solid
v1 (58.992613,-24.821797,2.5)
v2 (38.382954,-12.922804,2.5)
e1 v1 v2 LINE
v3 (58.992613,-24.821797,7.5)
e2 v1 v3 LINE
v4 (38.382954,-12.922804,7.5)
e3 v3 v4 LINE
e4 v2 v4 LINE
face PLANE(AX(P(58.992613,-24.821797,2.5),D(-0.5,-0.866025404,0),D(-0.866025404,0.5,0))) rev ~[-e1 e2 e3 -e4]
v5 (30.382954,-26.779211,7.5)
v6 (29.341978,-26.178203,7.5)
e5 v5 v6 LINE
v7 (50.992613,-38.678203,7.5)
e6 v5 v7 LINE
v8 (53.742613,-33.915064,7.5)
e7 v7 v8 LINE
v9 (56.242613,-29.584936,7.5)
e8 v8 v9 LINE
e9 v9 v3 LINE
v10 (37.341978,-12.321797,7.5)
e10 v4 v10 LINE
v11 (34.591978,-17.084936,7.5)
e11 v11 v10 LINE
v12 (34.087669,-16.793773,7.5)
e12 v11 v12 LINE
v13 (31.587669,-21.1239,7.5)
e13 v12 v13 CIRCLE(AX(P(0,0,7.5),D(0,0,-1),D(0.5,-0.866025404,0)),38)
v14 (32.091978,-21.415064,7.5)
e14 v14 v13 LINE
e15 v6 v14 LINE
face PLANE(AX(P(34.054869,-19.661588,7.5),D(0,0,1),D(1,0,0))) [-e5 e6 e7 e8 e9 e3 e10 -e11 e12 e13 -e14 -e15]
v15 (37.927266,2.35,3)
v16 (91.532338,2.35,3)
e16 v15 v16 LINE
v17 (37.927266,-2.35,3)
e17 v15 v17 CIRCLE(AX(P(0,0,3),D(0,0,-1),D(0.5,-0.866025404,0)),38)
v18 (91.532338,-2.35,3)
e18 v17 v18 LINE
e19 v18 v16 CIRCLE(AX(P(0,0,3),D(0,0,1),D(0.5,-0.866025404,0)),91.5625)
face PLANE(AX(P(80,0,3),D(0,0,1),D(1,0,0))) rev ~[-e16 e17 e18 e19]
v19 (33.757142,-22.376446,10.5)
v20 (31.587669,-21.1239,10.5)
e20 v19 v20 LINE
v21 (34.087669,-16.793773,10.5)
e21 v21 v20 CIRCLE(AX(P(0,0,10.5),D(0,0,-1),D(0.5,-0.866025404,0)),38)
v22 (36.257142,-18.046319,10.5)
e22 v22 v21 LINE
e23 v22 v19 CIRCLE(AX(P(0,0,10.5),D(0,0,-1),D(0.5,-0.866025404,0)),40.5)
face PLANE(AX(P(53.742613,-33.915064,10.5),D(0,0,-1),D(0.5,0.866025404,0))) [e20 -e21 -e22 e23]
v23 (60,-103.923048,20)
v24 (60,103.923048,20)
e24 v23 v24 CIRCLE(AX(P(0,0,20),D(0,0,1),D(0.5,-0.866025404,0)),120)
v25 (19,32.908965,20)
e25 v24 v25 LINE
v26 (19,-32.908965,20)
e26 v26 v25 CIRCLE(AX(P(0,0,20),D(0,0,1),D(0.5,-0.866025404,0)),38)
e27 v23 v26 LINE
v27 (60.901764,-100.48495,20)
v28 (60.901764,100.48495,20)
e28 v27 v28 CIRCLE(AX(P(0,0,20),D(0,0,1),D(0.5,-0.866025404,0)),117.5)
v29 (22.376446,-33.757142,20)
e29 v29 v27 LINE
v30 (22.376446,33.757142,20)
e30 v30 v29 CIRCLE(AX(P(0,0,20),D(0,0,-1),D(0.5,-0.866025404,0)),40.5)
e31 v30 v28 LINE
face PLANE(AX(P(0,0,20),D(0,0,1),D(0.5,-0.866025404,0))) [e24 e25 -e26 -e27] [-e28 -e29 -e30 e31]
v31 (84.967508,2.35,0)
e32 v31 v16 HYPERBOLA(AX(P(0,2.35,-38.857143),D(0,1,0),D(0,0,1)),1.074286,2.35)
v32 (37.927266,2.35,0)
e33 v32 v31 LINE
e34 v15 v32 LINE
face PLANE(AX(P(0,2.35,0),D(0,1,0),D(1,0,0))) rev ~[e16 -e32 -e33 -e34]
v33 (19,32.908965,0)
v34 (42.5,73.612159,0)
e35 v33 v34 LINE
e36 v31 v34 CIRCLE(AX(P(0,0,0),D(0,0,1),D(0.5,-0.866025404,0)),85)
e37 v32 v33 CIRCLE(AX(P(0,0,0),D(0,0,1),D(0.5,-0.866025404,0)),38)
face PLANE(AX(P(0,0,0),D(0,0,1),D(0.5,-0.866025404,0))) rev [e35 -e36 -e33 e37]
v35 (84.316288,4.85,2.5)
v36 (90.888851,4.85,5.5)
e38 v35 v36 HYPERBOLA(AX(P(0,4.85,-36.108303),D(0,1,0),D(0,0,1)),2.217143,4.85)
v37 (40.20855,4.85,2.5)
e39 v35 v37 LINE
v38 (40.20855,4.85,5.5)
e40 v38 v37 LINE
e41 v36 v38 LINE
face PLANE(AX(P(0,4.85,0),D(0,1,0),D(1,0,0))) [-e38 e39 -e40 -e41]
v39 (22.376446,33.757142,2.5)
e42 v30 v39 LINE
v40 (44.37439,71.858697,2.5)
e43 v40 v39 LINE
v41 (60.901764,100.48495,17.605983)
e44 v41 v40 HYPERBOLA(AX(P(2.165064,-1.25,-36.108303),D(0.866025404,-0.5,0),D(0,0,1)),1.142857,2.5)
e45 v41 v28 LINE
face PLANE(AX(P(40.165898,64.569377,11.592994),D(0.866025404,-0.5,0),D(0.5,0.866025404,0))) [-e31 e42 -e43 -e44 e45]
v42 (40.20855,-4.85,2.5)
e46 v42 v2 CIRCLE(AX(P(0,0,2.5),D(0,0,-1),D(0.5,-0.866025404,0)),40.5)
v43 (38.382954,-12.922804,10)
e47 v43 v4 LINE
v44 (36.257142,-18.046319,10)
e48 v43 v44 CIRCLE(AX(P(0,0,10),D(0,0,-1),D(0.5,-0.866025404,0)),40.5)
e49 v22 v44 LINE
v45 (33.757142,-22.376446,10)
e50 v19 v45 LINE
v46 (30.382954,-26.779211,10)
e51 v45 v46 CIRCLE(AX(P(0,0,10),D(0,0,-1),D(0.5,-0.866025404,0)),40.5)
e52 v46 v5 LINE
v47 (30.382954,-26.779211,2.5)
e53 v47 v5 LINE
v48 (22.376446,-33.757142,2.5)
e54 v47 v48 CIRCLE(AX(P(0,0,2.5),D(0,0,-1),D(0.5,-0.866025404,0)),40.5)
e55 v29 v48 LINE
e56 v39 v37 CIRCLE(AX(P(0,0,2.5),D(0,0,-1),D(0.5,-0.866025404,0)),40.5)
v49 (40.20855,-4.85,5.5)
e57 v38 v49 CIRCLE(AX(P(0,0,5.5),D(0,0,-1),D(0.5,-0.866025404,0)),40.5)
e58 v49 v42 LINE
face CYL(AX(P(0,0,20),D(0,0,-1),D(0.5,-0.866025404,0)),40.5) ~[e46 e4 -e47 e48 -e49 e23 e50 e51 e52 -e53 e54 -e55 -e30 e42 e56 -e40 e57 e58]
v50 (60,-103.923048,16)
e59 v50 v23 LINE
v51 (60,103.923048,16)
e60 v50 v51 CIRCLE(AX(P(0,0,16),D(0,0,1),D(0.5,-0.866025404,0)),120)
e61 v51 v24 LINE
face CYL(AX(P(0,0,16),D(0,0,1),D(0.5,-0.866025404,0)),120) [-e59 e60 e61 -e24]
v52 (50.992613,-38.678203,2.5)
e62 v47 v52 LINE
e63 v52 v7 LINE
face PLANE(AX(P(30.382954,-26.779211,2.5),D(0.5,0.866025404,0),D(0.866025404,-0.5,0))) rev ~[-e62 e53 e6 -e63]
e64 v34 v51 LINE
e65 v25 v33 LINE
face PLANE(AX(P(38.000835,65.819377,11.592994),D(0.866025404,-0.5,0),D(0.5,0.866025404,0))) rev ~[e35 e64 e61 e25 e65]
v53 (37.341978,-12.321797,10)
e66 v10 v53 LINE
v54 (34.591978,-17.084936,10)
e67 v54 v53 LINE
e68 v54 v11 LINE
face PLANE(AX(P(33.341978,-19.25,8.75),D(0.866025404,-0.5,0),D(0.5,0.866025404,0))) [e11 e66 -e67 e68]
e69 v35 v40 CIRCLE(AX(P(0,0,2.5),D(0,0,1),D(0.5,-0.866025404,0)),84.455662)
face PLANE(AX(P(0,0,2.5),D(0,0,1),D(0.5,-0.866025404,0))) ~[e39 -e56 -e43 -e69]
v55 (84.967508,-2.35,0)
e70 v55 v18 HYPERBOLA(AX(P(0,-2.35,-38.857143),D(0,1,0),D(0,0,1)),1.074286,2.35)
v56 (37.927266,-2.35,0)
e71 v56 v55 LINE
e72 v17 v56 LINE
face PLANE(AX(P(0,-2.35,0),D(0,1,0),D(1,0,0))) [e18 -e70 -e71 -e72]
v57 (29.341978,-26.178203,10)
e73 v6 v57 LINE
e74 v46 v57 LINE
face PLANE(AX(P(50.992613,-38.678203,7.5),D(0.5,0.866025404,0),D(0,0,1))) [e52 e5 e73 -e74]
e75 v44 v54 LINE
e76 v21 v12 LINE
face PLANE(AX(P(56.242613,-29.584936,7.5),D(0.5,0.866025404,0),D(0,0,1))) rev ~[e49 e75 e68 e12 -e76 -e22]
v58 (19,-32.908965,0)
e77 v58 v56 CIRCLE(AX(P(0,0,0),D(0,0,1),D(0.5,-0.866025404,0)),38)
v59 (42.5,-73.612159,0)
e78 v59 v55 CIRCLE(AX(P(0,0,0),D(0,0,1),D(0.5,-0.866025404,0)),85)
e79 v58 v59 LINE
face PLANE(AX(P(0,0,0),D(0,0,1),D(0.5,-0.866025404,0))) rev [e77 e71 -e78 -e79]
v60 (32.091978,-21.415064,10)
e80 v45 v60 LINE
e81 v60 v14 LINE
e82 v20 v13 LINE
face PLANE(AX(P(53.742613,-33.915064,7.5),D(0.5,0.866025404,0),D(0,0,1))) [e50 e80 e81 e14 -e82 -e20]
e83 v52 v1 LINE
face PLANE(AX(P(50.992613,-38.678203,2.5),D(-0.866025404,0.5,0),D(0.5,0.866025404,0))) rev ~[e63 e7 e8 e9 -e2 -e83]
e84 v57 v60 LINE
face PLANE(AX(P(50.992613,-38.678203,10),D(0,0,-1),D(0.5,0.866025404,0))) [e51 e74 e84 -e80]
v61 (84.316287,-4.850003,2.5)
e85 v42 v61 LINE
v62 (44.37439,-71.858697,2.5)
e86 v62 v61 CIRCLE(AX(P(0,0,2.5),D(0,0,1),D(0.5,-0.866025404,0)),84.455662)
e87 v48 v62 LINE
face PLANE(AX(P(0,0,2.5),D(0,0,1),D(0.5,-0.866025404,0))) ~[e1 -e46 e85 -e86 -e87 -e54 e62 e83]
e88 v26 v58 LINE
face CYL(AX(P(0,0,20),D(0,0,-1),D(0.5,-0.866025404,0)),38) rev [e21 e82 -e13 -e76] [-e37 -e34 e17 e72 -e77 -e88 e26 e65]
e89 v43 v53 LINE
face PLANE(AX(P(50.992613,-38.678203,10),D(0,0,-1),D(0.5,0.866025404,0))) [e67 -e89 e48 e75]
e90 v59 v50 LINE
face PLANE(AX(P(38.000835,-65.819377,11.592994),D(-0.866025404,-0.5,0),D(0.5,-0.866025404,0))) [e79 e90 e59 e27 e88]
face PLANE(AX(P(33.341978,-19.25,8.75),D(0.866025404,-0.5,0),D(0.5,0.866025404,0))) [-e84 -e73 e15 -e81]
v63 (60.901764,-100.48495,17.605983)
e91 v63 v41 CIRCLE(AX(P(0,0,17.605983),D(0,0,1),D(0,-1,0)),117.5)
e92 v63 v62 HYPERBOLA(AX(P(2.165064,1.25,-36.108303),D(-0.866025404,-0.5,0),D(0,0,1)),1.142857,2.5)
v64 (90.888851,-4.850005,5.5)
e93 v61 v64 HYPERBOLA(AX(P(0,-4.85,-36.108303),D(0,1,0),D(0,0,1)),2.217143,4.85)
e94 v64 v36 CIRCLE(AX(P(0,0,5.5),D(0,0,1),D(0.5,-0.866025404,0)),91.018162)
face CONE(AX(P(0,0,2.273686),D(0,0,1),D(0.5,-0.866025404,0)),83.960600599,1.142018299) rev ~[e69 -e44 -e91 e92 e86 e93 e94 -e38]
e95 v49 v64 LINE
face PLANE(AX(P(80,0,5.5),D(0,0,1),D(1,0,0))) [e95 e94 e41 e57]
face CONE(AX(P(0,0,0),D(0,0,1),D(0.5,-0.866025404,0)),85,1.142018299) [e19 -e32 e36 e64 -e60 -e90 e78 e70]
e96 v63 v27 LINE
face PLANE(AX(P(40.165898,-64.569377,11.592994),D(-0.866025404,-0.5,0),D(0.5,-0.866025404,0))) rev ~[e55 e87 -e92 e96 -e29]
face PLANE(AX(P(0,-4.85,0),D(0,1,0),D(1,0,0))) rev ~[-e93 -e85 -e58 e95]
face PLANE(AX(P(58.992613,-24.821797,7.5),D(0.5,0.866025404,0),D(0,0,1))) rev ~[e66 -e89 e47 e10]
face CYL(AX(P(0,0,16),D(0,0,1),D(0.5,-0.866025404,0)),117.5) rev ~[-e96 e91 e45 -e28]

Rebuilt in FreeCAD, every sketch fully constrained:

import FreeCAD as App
import Part
import Sketcher
Q = App.Units.Quantity


def faces_at(feature, points):
    """Names of the faces that lie closest to the given points."""
    faces = feature.Shape.Faces
    near = lambda p: min(range(len(faces)), key=lambda i: faces[i].distToShape(Part.Vertex(*p))[0])
    return sorted({f"Face{near(p) + 1}" for p in points})

doc = App.newDocument("Part")
params = doc.addObject("Spreadsheet::Sheet", "Params")
for row, (alias, value) in enumerate([
    ("sketch1_width", "47 mm"),
    ("sketch1_width2", "82 mm"),
    ("sketch1_height", "20 mm"),
    ("sketch1_height2", "4 mm"),
    ("revolution_angle", "120 deg"),
    ("sketch2_width", "160 mm"),
    ("sketch2_height", "4.7 mm"),
    ("pocket1_length", "3 mm"),
    ("thickness_wall", "2.5 mm"),
    ("sketch3_length", "16 mm"),
    ("pad1_length", "5 mm"),
    ("sketch4_width", "5 mm"),
    ("sketch4_height", "3 mm"),
    ("sketch5_width", "16 mm"),
    ("sketch5_height", "2.5 mm"),
    ("pocket3_length", "25 mm"),
], start=1):
    params.set(f"A{row}", alias)
    params.set(f"B{row}", "=" + value)
    params.setAlias(f"B{row}", alias)

body = doc.addObject("PartDesign::Body", "Body")

# Sketch on an angled plane
sketch1 = body.newObject("Sketcher::SketchObject", "Sketch")
sketch1.Placement = App.Placement(App.Vector(0, 0, 0), App.Rotation(App.Vector(0.5, -0.866025404, 0), App.Vector(0, 0, 1), App.Vector(-0.866025404, -0.5, 0), "ZXY"))
sketch1.addGeometry(Part.LineSegment(App.Vector(38, 20, 0), App.Vector(38, 0, 0)), False)
sketch1.addGeometry(Part.LineSegment(App.Vector(38, 0, 0), App.Vector(85, 0, 0)), False)
sketch1.addGeometry(Part.LineSegment(App.Vector(85, 0, 0), App.Vector(120, 16, 0)), False)
sketch1.addGeometry(Part.LineSegment(App.Vector(120, 16, 0), App.Vector(120, 20, 0)), False)
sketch1.addGeometry(Part.LineSegment(App.Vector(120, 20, 0), App.Vector(38, 20, 0)), False)
sketch1.addConstraint(Sketcher.Constraint("Coincident", 0, 2, 1, 1))
sketch1.addConstraint(Sketcher.Constraint("Coincident", 1, 2, 2, 1))
sketch1.addConstraint(Sketcher.Constraint("Coincident", 2, 2, 3, 1))
sketch1.addConstraint(Sketcher.Constraint("Coincident", 3, 2, 4, 1))
sketch1.addConstraint(Sketcher.Constraint("Coincident", 4, 2, 0, 1))
sketch1.addConstraint(Sketcher.Constraint("Vertical", 0))
sketch1.addConstraint(Sketcher.Constraint("Horizontal", 1))
sketch1.addConstraint(Sketcher.Constraint("Vertical", 3))
sketch1.addConstraint(Sketcher.Constraint("Horizontal", 4))
sketch1.addConstraint(Sketcher.Constraint("PointOnObject", 0, 2, -1))
sketch1.addConstraint(Sketcher.Constraint("DistanceX", 1, 1, 1, 2, 47.0))
sketch1.addConstraint(Sketcher.Constraint("DistanceX", 4, 2, 4, 1, 82.0))
sketch1.addConstraint(Sketcher.Constraint("DistanceY", 0, 2, 0, 1, 20.0))
sketch1.addConstraint(Sketcher.Constraint("DistanceY", 3, 1, 3, 2, 4.0))
sketch1.addConstraint(Sketcher.Constraint("DistanceX", -1, 1, 0, 2, 38.0))
sketch1.setExpression("Constraints[10]", "Params.sketch1_width")
sketch1.setExpression("Constraints[11]", "Params.sketch1_width2")
sketch1.setExpression("Constraints[12]", "Params.sketch1_height")
sketch1.setExpression("Constraints[13]", "Params.sketch1_height2")
revolution = body.newObject("PartDesign::Revolution", "Revolution")
revolution.Profile = sketch1
revolution.ReferenceAxis = (sketch1, ["V_Axis"])
revolution.setExpression("Angle", "Params.revolution_angle")

# Sketch on XY plane
sketch2 = body.newObject("Sketcher::SketchObject", "Sketch001")
sketch2.AttachmentSupport = (doc.getObject("XY_Plane"), [""])
sketch2.MapMode = "FlatFace"
sketch2.addGeometry(Part.LineSegment(App.Vector(0, 2.4, 0), App.Vector(0, -2.4, 0)), False)
sketch2.addGeometry(Part.LineSegment(App.Vector(0, -2.4, 0), App.Vector(160, -2.4, 0)), False)
sketch2.addGeometry(Part.LineSegment(App.Vector(160, -2.4, 0), App.Vector(160, 2.4, 0)), False)
sketch2.addGeometry(Part.LineSegment(App.Vector(160, 2.4, 0), App.Vector(0, 2.4, 0)), False)
sketch2.addConstraint(Sketcher.Constraint("Coincident", 0, 2, 1, 1))
sketch2.addConstraint(Sketcher.Constraint("Coincident", 1, 2, 2, 1))
sketch2.addConstraint(Sketcher.Constraint("Coincident", 2, 2, 3, 1))
sketch2.addConstraint(Sketcher.Constraint("Coincident", 3, 2, 0, 1))
sketch2.addConstraint(Sketcher.Constraint("Vertical", 0))
sketch2.addConstraint(Sketcher.Constraint("Horizontal", 1))
sketch2.addConstraint(Sketcher.Constraint("Vertical", 2))
sketch2.addConstraint(Sketcher.Constraint("Horizontal", 3))
sketch2.addConstraint(Sketcher.Constraint("Symmetric", 0, 2, 3, 2, -1, 1))
sketch2.addConstraint(Sketcher.Constraint("DistanceX", 1, 1, 1, 2, 160.0))
sketch2.addConstraint(Sketcher.Constraint("DistanceY", 0, 2, 0, 1, 4.7))
sketch2.setExpression("Constraints[9]", "Params.sketch2_width")
sketch2.setExpression("Constraints[10]", "Params.sketch2_height")
pocket1 = body.newObject("PartDesign::Pocket", "Pocket")
pocket1.Profile = sketch2
pocket1.setExpression("Length", "Params.pocket1_length")
pocket1.Reversed = True
doc.recompute()

thickness = body.newObject("PartDesign::Thickness", "Thickness")
thickness.Base = (pocket1, faces_at(pocket1, [(66.962, 4.019, 20)]))
thickness.setExpression("Value", "Params.thickness_wall")
thickness.Reversed = True
thickness.Join = "Intersection"

# Sketch on XY plane
sketch3 = body.newObject("Sketcher::SketchObject", "Sketch002")
sketch3.AttachmentSupport = (doc.getObject("XY_Plane"), [""])
sketch3.MapMode = "FlatFace"
sketch3.AttachmentOffset = App.Placement(App.Vector(0, 0, 2.5), App.Rotation())
sketch3.addGeometry(Part.LineSegment(App.Vector(38.4, -12.9, 0), App.Vector(37.3, -12.3, 0)), False)
sketch3.addGeometry(Part.LineSegment(App.Vector(37.3, -12.3, 0), App.Vector(29.3, -26.2, 0)), False)
sketch3.addGeometry(Part.LineSegment(App.Vector(29.3, -26.2, 0), App.Vector(30.4, -26.8, 0)), False)
sketch3.addGeometry(Part.LineSegment(App.Vector(30.4, -26.8, 0), App.Vector(51, -38.7, 0)), False)
sketch3.addGeometry(Part.LineSegment(App.Vector(51, -38.7, 0), App.Vector(59, -24.8, 0)), False)
sketch3.addGeometry(Part.LineSegment(App.Vector(59, -24.8, 0), App.Vector(38.4, -12.9, 0)), False)
sketch3.addConstraint(Sketcher.Constraint("Coincident", 0, 2, 1, 1))
sketch3.addConstraint(Sketcher.Constraint("Coincident", 1, 2, 2, 1))
sketch3.addConstraint(Sketcher.Constraint("Coincident", 2, 2, 3, 1))
sketch3.addConstraint(Sketcher.Constraint("Coincident", 3, 2, 4, 1))
sketch3.addConstraint(Sketcher.Constraint("Coincident", 4, 2, 5, 1))
sketch3.addConstraint(Sketcher.Constraint("Coincident", 5, 2, 0, 1))
sketch3.addConstraint(Sketcher.Constraint("Perpendicular", 0, 1))
sketch3.addConstraint(Sketcher.Constraint("Perpendicular", 1, 2))
sketch3.addConstraint(Sketcher.Constraint("Parallel", 2, 3))
sketch3.addConstraint(Sketcher.Constraint("Perpendicular", 3, 4))
sketch3.addConstraint(Sketcher.Constraint("Perpendicular", 4, 5))
sketch3.addConstraint(Sketcher.Constraint("Equal", 0, 2))
sketch3.addConstraint(Sketcher.Constraint("Angle", 0, Q("150 deg")))
sketch3.addConstraint(Sketcher.Constraint("Distance", 1, 16.0))
sketch3.addConstraint(Sketcher.Constraint("DistanceY", 3, 2, 1, 2, 12.5))
sketch3.addConstraint(Sketcher.Constraint("DistanceY", 1, 2, 5, 2, 13.255399))
sketch3.addConstraint(Sketcher.Constraint("DistanceX", -1, 1, 0, 2, 37.341978))
sketch3.addConstraint(Sketcher.Constraint("DistanceY", 2, 2, -1, 1, 26.779211))
sketch3.setExpression("Constraints[13]", "Params.sketch3_length")
pad1 = body.newObject("PartDesign::Pad", "Pad")
pad1.Profile = sketch3
pad1.setExpression("Length", "Params.pad1_length")

# Sketch on an angled plane
sketch4 = body.newObject("Sketcher::SketchObject", "Sketch003")
sketch4.Placement = App.Placement(App.Vector(54.992613, -31.75, 0), App.Rotation(App.Vector(0.5, 0.866025404, 0), App.Vector(0, 0, 1), App.Vector(0.866025404, -0.5, 0), "ZXY"))
sketch4.addGeometry(Part.LineSegment(App.Vector(-2.5, 10.5, 0), App.Vector(-2.5, 7.5, 0)), False)
sketch4.addGeometry(Part.LineSegment(App.Vector(-2.5, 7.5, 0), App.Vector(2.5, 7.5, 0)), False)
sketch4.addGeometry(Part.LineSegment(App.Vector(2.5, 7.5, 0), App.Vector(2.5, 10.5, 0)), False)
sketch4.addGeometry(Part.LineSegment(App.Vector(2.5, 10.5, 0), App.Vector(-2.5, 10.5, 0)), False)
sketch4.addConstraint(Sketcher.Constraint("Coincident", 0, 2, 1, 1))
sketch4.addConstraint(Sketcher.Constraint("Coincident", 1, 2, 2, 1))
sketch4.addConstraint(Sketcher.Constraint("Coincident", 2, 2, 3, 1))
sketch4.addConstraint(Sketcher.Constraint("Coincident", 3, 2, 0, 1))
sketch4.addConstraint(Sketcher.Constraint("Vertical", 0))
sketch4.addConstraint(Sketcher.Constraint("Horizontal", 1))
sketch4.addConstraint(Sketcher.Constraint("Vertical", 2))
sketch4.addConstraint(Sketcher.Constraint("Horizontal", 3))
sketch4.addConstraint(Sketcher.Constraint("DistanceX", 1, 1, 1, 2, 5.0))
sketch4.addConstraint(Sketcher.Constraint("DistanceY", 0, 2, 0, 1, 3.0))
sketch4.addConstraint(Sketcher.Constraint("DistanceX", 0, 2, -1, 1, 2.5))
sketch4.addConstraint(Sketcher.Constraint("DistanceY", -1, 1, 0, 2, 7.5))
sketch4.setExpression("Constraints[8]", "Params.sketch4_width")
sketch4.setExpression("Constraints[9]", "Params.sketch4_height")
pocket2 = body.newObject("PartDesign::Pocket", "Pocket001")
pocket2.Profile = sketch4
pocket2.Type = "ThroughAll"

# Sketch on an angled plane
sketch5 = body.newObject("Sketcher::SketchObject", "Sketch004")
sketch5.Placement = App.Placement(App.Vector(54.992613, -31.75, 0), App.Rotation(App.Vector(0.5, 0.866025404, 0), App.Vector(0, 0, 1), App.Vector(0.866025404, -0.5, 0), "ZXY"))
sketch5.addGeometry(Part.LineSegment(App.Vector(-8, 10, 0), App.Vector(-8, 7.5, 0)), False)
sketch5.addGeometry(Part.LineSegment(App.Vector(-8, 7.5, 0), App.Vector(8, 7.5, 0)), False)
sketch5.addGeometry(Part.LineSegment(App.Vector(8, 7.5, 0), App.Vector(8, 10, 0)), False)
sketch5.addGeometry(Part.LineSegment(App.Vector(8, 10, 0), App.Vector(-8, 10, 0)), False)
sketch5.addConstraint(Sketcher.Constraint("Coincident", 0, 2, 1, 1))
sketch5.addConstraint(Sketcher.Constraint("Coincident", 1, 2, 2, 1))
sketch5.addConstraint(Sketcher.Constraint("Coincident", 2, 2, 3, 1))
sketch5.addConstraint(Sketcher.Constraint("Coincident", 3, 2, 0, 1))
sketch5.addConstraint(Sketcher.Constraint("Vertical", 0))
sketch5.addConstraint(Sketcher.Constraint("Horizontal", 1))
sketch5.addConstraint(Sketcher.Constraint("Vertical", 2))
sketch5.addConstraint(Sketcher.Constraint("Horizontal", 3))
sketch5.addConstraint(Sketcher.Constraint("DistanceX", 1, 1, 1, 2, 16.0))
sketch5.addConstraint(Sketcher.Constraint("DistanceY", 0, 2, 0, 1, 2.5))
sketch5.addConstraint(Sketcher.Constraint("DistanceX", 0, 2, -1, 1, 8.0))
sketch5.addConstraint(Sketcher.Constraint("DistanceY", -1, 1, 2, 2, 10.0))
sketch5.setExpression("Constraints[8]", "Params.sketch5_width")
sketch5.setExpression("Constraints[9]", "Params.sketch5_height")
pocket3 = body.newObject("PartDesign::Pocket", "Pocket002")
pocket3.Profile = sketch5
pocket3.setExpression("Length", "Params.pocket3_length")

doc.recompute()
